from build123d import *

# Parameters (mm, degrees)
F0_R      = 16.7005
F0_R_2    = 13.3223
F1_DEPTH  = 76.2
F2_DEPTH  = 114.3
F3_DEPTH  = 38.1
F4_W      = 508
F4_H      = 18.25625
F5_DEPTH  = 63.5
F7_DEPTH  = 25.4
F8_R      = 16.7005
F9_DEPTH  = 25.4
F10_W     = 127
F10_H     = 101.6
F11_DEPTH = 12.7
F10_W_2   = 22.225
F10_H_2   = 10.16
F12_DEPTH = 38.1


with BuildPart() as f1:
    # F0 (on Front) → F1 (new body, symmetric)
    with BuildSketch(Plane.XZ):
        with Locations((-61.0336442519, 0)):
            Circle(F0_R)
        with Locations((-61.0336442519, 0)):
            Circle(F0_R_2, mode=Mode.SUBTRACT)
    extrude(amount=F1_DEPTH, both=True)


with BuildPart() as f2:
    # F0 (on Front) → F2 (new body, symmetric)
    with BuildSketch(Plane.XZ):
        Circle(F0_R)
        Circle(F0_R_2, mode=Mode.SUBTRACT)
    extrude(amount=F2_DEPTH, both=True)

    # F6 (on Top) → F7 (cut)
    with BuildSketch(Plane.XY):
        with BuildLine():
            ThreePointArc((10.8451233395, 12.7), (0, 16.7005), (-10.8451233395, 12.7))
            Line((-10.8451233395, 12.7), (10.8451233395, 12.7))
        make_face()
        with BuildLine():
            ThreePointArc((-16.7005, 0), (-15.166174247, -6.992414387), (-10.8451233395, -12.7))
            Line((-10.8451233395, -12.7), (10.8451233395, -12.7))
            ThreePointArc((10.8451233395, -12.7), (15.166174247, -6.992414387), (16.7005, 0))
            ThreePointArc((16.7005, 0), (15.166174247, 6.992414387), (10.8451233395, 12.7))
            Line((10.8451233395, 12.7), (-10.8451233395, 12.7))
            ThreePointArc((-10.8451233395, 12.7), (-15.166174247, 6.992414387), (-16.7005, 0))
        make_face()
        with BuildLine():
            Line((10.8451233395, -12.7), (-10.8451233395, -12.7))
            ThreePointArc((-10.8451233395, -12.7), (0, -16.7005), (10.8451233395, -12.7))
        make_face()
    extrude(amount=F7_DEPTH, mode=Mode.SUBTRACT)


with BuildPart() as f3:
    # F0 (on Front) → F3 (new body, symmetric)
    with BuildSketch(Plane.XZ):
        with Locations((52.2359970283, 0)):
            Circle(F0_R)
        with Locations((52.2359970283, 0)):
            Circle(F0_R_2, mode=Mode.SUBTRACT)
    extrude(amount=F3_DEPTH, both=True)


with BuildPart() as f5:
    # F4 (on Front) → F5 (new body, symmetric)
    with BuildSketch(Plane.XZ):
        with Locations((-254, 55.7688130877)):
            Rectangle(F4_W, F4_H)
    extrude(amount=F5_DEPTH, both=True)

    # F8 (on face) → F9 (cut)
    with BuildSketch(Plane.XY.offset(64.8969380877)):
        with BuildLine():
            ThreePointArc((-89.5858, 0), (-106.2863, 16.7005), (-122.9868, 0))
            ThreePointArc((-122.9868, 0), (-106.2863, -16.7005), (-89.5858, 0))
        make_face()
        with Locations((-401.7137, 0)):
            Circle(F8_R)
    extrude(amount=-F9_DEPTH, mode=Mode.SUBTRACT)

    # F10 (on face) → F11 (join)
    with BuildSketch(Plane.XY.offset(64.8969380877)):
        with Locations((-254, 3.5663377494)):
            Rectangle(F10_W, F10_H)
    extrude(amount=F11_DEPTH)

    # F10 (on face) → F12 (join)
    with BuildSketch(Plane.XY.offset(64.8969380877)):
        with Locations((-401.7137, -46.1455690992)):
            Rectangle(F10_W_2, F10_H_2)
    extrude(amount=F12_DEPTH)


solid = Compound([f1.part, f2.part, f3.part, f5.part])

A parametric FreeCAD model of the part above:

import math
import FreeCAD as App
import Part
import Sketcher

V = App.Vector
Q = App.Units.Quantity


def add_polygon(sketch, points):
    """Adds a closed chain of lines whose ends are joined by coincident constraints."""
    first, n = sketch.GeometryCount, len(points)
    for a, b in zip(points, points[1:] + points[:1]):
        sketch.addGeometry(Part.LineSegment(App.Vector(*a, 0), App.Vector(*b, 0)), False)
    for i in range(n):
        sketch.addConstraint(Sketcher.Constraint("Coincident", first + i, 2, first + (i + 1) % n, 1))

doc = App.newDocument("Part")
params = doc.addObject("Spreadsheet::Sheet", "Params")
for row, (alias, value) in enumerate([
    ("sketch1_diameter", "1.315 in"),
    ("sketch1_diameter2", "1.049 in"),
    ("pad1_length", "6 in"),
    ("sketch2_diameter", "1.315 in"),
    ("sketch2_diameter2", "1.049 in"),
    ("pad2_length", "9 in"),
    ("pocket1_length", "1 in"),
    ("sketch4_diameter", "1.315 in"),
    ("sketch4_diameter2", "1.049 in"),
    ("pad3_length", "3 in"),
    ("sketch5_width", "20 in"),
    ("sketch5_height", "0.71875 in"),
    ("pad4_length", "5 in"),
    ("sketch6_diameter", "1.315 in"),
    ("pocket2_length", "1 in"),
    ("sketch7_width", "5 in"),
    ("sketch7_height", "4 in"),
    ("pad5_length", "0.5 in"),
    ("sketch8_height", "0.4 in"),
    ("sketch8_width", "0.875 in"),
    ("pad6_length", "1.5 in"),
], start=1):
    params.set(f"A{row}", alias)
    params.set(f"B{row}", "=" + value)
    params.setAlias(f"B{row}", alias)

body = doc.addObject("PartDesign::Body", "Body")

sketch1 = doc.addObject("Sketcher::SketchObject", "Sketch")
body.addObject(sketch1)
sketch1.AttachmentSupport = (doc.XZ_Plane, [""])
sketch1.MapMode = "FlatFace"
sketch1.addGeometry(Part.Circle(V(-61.033644, 0, 0), V(0, 0, 1), 16.7005), False)
sketch1.addGeometry(Part.Circle(V(-61.033644, 0, 0), V(0, 0, 1), 13.3223), False)
sketch1.addConstraint(Sketcher.Constraint("Coincident", 1, 3, 0, 3))
sketch1.addConstraint(Sketcher.Constraint("PointOnObject", 0, 3, -1))
sketch1.addConstraint(Sketcher.Constraint("Diameter", 0, Q("1.315 in")))
sketch1.addConstraint(Sketcher.Constraint("Diameter", 1, Q("1.049 in")))
sketch1.addConstraint(Sketcher.Constraint("DistanceX", 0, 3, -1, 1, Q("61.033644 mm")))
sketch1.setExpression("Constraints[2]", "Params.sketch1_diameter")
sketch1.setExpression("Constraints[3]", "Params.sketch1_diameter2")
pad1 = doc.addObject("PartDesign::Pad", "Pad")
body.addObject(pad1)
pad1.Profile = sketch1
pad1.setExpression("Length", "Params.pad1_length")
pad1.Midplane = True
body2 = doc.addObject("PartDesign::Body", "Body001")

sketch2 = doc.addObject("Sketcher::SketchObject", "Sketch001")
body2.addObject(sketch2)
sketch2.AttachmentSupport = (doc.getObject("XZ_Plane001"), [""])
sketch2.MapMode = "FlatFace"
sketch2.addGeometry(Part.Circle(V(0, 0, 0), V(0, 0, 1), 16.7005), False)
sketch2.addGeometry(Part.Circle(V(0, 0, 0), V(0, 0, 1), 13.3223), False)
sketch2.addConstraint(Sketcher.Constraint("Coincident", 0, 3, -1, 1))
sketch2.addConstraint(Sketcher.Constraint("Coincident", 1, 3, -1, 1))
sketch2.addConstraint(Sketcher.Constraint("Diameter", 0, Q("1.315 in")))
sketch2.addConstraint(Sketcher.Constraint("Diameter", 1, Q("1.049 in")))
sketch2.setExpression("Constraints[2]", "Params.sketch2_diameter")
sketch2.setExpression("Constraints[3]", "Params.sketch2_diameter2")
pad2 = doc.addObject("PartDesign::Pad", "Pad001")
body2.addObject(pad2)
pad2.Profile = sketch2
pad2.setExpression("Length", "Params.pad2_length")
pad2.Midplane = True

sketch3 = doc.addObject("Sketcher::SketchObject", "Sketch002")
body2.addObject(sketch3)
sketch3.AttachmentSupport = (doc.getObject("XY_Plane001"), [""])
sketch3.MapMode = "FlatFace"
sketch3.addGeometry(Part.ArcOfCircle(Part.Circle(V(0, 0, 0), V(0, 0, 1), 16.7005), math.radians(49.504439), math.radians(130.495561)), False)
sketch3.addGeometry(Part.ArcOfCircle(Part.Circle(V(0, 0, 0), V(0, 0, 1), 16.7005), math.radians(130.495561), math.radians(180)), False)
sketch3.addGeometry(Part.ArcOfCircle(Part.Circle(V(0, 0, 0), V(0, 0, 1), 16.7005), math.radians(180), math.radians(229.504439)), False)
sketch3.addGeometry(Part.ArcOfCircle(Part.Circle(V(0, 0, 0), V(0, 0, 1), 16.7005), math.radians(-130.495561), math.radians(-49.504439)), False)
sketch3.addGeometry(Part.ArcOfCircle(Part.Circle(V(0, 0, 0), V(0, 0, 1), 16.7005), math.radians(-49.504439), math.radians(0)), False)
sketch3.addGeometry(Part.ArcOfCircle(Part.Circle(V(0, 0, 0), V(0, 0, 1), 16.7005), math.radians(0), math.radians(49.504439)), False)
sketch3.addConstraint(Sketcher.Constraint("Tangent", 0, 2, 1, 1))
sketch3.addConstraint(Sketcher.Constraint("Tangent", 1, 2, 2, 1))
sketch3.addConstraint(Sketcher.Constraint("Tangent", 2, 2, 3, 1))
sketch3.addConstraint(Sketcher.Constraint("Tangent", 3, 2, 4, 1))
sketch3.addConstraint(Sketcher.Constraint("Tangent", 4, 2, 5, 1))
sketch3.addConstraint(Sketcher.Constraint("Tangent", 5, 2, 0, 1))
sketch3.addConstraint(Sketcher.Constraint("Coincident", 0, 3, -1, 1))
sketch3.addConstraint(Sketcher.Constraint("Coincident", 2, 3, -1, 1))
sketch3.addConstraint(Sketcher.Constraint("Equal", 2, 3))
sketch3.addConstraint(Sketcher.Constraint("PointOnObject", 1, 2, -1))
sketch3.addConstraint(Sketcher.Constraint("PointOnObject", 4, 2, -1))
sketch3.addConstraint(Sketcher.Constraint("Horizontal", 2, 2, 3, 2))
sketch3.addConstraint(Sketcher.Constraint("Horizontal", 0, 2, 5, 2))
sketch3.addConstraint(Sketcher.Constraint("Vertical", 0, 2, 2, 2))
sketch3.addConstraint(Sketcher.Constraint("DistanceY", -1, 1, 0, 2, Q("0.5 in")))
sketch3.addConstraint(Sketcher.Constraint("Radius", 0, Q("0.6575 in")))
pocket1 = doc.addObject("PartDesign::Pocket", "Pocket")
body2.addObject(pocket1)
pocket1.Profile = sketch3
pocket1.setExpression("Length", "Params.pocket1_length")
pocket1.Reversed = True
body3 = doc.addObject("PartDesign::Body", "Body002")

sketch4 = doc.addObject("Sketcher::SketchObject", "Sketch003")
body3.addObject(sketch4)
sketch4.AttachmentSupport = (doc.getObject("XZ_Plane002"), [""])
sketch4.MapMode = "FlatFace"
sketch4.addGeometry(Part.Circle(V(52.235997, 0, 0), V(0, 0, 1), 16.7005), False)
sketch4.addGeometry(Part.Circle(V(52.235997, 0, 0), V(0, 0, 1), 13.3223), False)
sketch4.addConstraint(Sketcher.Constraint("Coincident", 1, 3, 0, 3))
sketch4.addConstraint(Sketcher.Constraint("PointOnObject", 0, 3, -1))
sketch4.addConstraint(Sketcher.Constraint("Diameter", 0, Q("1.315 in")))
sketch4.addConstraint(Sketcher.Constraint("Diameter", 1, Q("1.049 in")))
sketch4.addConstraint(Sketcher.Constraint("DistanceX", -1, 1, 0, 3, Q("52.235997 mm")))
sketch4.setExpression("Constraints[2]", "Params.sketch4_diameter")
sketch4.setExpression("Constraints[3]", "Params.sketch4_diameter2")
pad3 = doc.addObject("PartDesign::Pad", "Pad002")
body3.addObject(pad3)
pad3.Profile = sketch4
pad3.setExpression("Length", "Params.pad3_length")
pad3.Midplane = True
body4 = doc.addObject("PartDesign::Body", "Body003")

sketch5 = doc.addObject("Sketcher::SketchObject", "Sketch004")
body4.addObject(sketch5)
sketch5.AttachmentSupport = (doc.getObject("XZ_Plane003"), [""])
sketch5.MapMode = "FlatFace"
add_polygon(sketch5, [(-508, 64.896938), (-508, 46.640688), (0, 46.640688), (0, 64.896938)])
sketch5.addConstraint(Sketcher.Constraint("Vertical", 0))
sketch5.addConstraint(Sketcher.Constraint("Horizontal", 1))
sketch5.addConstraint(Sketcher.Constraint("Vertical", 2))
sketch5.addConstraint(Sketcher.Constraint("Horizontal", 3))
sketch5.addConstraint(Sketcher.Constraint("PointOnObject", 1, 2, -2))
sketch5.addConstraint(Sketcher.Constraint("DistanceX", 1, 1, 1, 2, Q("20 in")))
sketch5.addConstraint(Sketcher.Constraint("DistanceY", 0, 2, 0, 1, Q("0.71875 in")))
sketch5.addConstraint(Sketcher.Constraint("DistanceY", -1, 1, 0, 2, Q("46.640688 mm")))
sketch5.setExpression("Constraints[9]", "Params.sketch5_width")
sketch5.setExpression("Constraints[10]", "Params.sketch5_height")
pad4 = doc.addObject("PartDesign::Pad", "Pad003")
body4.addObject(pad4)
pad4.Profile = sketch5
pad4.setExpression("Length", "Params.pad4_length")
pad4.Midplane = True

sketch6 = doc.addObject("Sketcher::SketchObject", "Sketch005")
body4.addObject(sketch6)
sketch6.AttachmentSupport = (doc.getObject("XY_Plane003"), [""])
sketch6.MapMode = "FlatFace"
sketch6.AttachmentOffset = App.Placement(V(0, 0, 64.896938), App.Rotation())
sketch6.addGeometry(Part.Circle(V(-106.2863, 0, 0), V(0, 0, 1), 16.7005), False)
sketch6.addGeometry(Part.Circle(V(-401.7137, 0, 0), V(0, 0, 1), 16.7005), False)
sketch6.addConstraint(Sketcher.Constraint("Equal", 0, 1))
sketch6.addConstraint(Sketcher.Constraint("PointOnObject", 0, 3, -1))
sketch6.addConstraint(Sketcher.Constraint("PointOnObject", 1, 3, -1))
sketch6.addConstraint(Sketcher.Constraint("Diameter", 0, Q("1.315 in")))
sketch6.addConstraint(Sketcher.Constraint("DistanceX", 1, 3, 0, 3, Q("11.631 in")))
sketch6.addConstraint(Sketcher.Constraint("DistanceX", 0, 3, -1, 1, Q("4.1845 in")))
sketch6.setExpression("Constraints[3]", "Params.sketch6_diameter")
pocket2 = doc.addObject("PartDesign::Pocket", "Pocket001")
body4.addObject(pocket2)
pocket2.Profile = sketch6
pocket2.setExpression("Length", "Params.pocket2_length")

sketch7 = doc.addObject("Sketcher::SketchObject", "Sketch006")
body4.addObject(sketch7)
sketch7.AttachmentSupport = (doc.getObject("XY_Plane003"), [""])
sketch7.MapMode = "FlatFace"
sketch7.AttachmentOffset = App.Placement(V(0, 0, 64.896938), App.Rotation())
add_polygon(sketch7, [(-317.5, 54.366338), (-317.5, -47.233662), (-190.5, -47.233662), (-190.5, 54.366338)])
sketch7.addConstraint(Sketcher.Constraint("Vertical", 0))
sketch7.addConstraint(Sketcher.Constraint("Horizontal", 1))
sketch7.addConstraint(Sketcher.Constraint("Vertical", 2))
sketch7.addConstraint(Sketcher.Constraint("Horizontal", 3))
sketch7.addConstraint(Sketcher.Constraint("DistanceX", 1, 1, 1, 2, Q("5 in")))
sketch7.addConstraint(Sketcher.Constraint("DistanceY", 0, 2, 0, 1, Q("4 in")))
sketch7.addConstraint(Sketcher.Constraint("DistanceX", 0, 2, -1, 1, Q("12.5 in")))
sketch7.addConstraint(Sketcher.Constraint("DistanceY", 0, 2, -1, 1, Q("47.233662 mm")))
sketch7.setExpression("Constraints[8]", "Params.sketch7_width")
sketch7.setExpression("Constraints[9]", "Params.sketch7_height")
pad5 = doc.addObject("PartDesign::Pad", "Pad004")
body4.addObject(pad5)
pad5.Profile = sketch7
pad5.setExpression("Length", "Params.pad5_length")

sketch8 = doc.addObject("Sketcher::SketchObject", "Sketch007")
body4.addObject(sketch8)
sketch8.AttachmentSupport = (doc.getObject("XY_Plane003"), [""])
sketch8.MapMode = "FlatFace"
sketch8.AttachmentOffset = App.Placement(V(0, 0, 64.896938), App.Rotation())
add_polygon(sketch8, [(-412.8262, -41.065569), (-412.8262, -51.225569), (-390.6012, -51.225569), (-390.6012, -41.065569)])
sketch8.addConstraint(Sketcher.Constraint("Vertical", 0))
sketch8.addConstraint(Sketcher.Constraint("Horizontal", 1))
sketch8.addConstraint(Sketcher.Constraint("Vertical", 2))
sketch8.addConstraint(Sketcher.Constraint("Horizontal", 3))
sketch8.addConstraint(Sketcher.Constraint("DistanceY", 0, 2, 0, 1, Q("0.4 in")))
sketch8.addConstraint(Sketcher.Constraint("DistanceX", 1, 1, 1, 2, Q("0.875 in")))
sketch8.addConstraint(Sketcher.Constraint("DistanceX", 0, 2, -1, 1, Q("16.253 in")))
sketch8.addConstraint(Sketcher.Constraint("DistanceY", 0, 2, -1, 1, Q("51.225569 mm")))
sketch8.setExpression("Constraints[8]", "Params.sketch8_height")
sketch8.setExpression("Constraints[9]", "Params.sketch8_width")
pad6 = doc.addObject("PartDesign::Pad", "Pad005")
body4.addObject(pad6)
pad6.Profile = sketch8
pad6.setExpression("Length", "Params.pad6_length")

doc.recompute()
